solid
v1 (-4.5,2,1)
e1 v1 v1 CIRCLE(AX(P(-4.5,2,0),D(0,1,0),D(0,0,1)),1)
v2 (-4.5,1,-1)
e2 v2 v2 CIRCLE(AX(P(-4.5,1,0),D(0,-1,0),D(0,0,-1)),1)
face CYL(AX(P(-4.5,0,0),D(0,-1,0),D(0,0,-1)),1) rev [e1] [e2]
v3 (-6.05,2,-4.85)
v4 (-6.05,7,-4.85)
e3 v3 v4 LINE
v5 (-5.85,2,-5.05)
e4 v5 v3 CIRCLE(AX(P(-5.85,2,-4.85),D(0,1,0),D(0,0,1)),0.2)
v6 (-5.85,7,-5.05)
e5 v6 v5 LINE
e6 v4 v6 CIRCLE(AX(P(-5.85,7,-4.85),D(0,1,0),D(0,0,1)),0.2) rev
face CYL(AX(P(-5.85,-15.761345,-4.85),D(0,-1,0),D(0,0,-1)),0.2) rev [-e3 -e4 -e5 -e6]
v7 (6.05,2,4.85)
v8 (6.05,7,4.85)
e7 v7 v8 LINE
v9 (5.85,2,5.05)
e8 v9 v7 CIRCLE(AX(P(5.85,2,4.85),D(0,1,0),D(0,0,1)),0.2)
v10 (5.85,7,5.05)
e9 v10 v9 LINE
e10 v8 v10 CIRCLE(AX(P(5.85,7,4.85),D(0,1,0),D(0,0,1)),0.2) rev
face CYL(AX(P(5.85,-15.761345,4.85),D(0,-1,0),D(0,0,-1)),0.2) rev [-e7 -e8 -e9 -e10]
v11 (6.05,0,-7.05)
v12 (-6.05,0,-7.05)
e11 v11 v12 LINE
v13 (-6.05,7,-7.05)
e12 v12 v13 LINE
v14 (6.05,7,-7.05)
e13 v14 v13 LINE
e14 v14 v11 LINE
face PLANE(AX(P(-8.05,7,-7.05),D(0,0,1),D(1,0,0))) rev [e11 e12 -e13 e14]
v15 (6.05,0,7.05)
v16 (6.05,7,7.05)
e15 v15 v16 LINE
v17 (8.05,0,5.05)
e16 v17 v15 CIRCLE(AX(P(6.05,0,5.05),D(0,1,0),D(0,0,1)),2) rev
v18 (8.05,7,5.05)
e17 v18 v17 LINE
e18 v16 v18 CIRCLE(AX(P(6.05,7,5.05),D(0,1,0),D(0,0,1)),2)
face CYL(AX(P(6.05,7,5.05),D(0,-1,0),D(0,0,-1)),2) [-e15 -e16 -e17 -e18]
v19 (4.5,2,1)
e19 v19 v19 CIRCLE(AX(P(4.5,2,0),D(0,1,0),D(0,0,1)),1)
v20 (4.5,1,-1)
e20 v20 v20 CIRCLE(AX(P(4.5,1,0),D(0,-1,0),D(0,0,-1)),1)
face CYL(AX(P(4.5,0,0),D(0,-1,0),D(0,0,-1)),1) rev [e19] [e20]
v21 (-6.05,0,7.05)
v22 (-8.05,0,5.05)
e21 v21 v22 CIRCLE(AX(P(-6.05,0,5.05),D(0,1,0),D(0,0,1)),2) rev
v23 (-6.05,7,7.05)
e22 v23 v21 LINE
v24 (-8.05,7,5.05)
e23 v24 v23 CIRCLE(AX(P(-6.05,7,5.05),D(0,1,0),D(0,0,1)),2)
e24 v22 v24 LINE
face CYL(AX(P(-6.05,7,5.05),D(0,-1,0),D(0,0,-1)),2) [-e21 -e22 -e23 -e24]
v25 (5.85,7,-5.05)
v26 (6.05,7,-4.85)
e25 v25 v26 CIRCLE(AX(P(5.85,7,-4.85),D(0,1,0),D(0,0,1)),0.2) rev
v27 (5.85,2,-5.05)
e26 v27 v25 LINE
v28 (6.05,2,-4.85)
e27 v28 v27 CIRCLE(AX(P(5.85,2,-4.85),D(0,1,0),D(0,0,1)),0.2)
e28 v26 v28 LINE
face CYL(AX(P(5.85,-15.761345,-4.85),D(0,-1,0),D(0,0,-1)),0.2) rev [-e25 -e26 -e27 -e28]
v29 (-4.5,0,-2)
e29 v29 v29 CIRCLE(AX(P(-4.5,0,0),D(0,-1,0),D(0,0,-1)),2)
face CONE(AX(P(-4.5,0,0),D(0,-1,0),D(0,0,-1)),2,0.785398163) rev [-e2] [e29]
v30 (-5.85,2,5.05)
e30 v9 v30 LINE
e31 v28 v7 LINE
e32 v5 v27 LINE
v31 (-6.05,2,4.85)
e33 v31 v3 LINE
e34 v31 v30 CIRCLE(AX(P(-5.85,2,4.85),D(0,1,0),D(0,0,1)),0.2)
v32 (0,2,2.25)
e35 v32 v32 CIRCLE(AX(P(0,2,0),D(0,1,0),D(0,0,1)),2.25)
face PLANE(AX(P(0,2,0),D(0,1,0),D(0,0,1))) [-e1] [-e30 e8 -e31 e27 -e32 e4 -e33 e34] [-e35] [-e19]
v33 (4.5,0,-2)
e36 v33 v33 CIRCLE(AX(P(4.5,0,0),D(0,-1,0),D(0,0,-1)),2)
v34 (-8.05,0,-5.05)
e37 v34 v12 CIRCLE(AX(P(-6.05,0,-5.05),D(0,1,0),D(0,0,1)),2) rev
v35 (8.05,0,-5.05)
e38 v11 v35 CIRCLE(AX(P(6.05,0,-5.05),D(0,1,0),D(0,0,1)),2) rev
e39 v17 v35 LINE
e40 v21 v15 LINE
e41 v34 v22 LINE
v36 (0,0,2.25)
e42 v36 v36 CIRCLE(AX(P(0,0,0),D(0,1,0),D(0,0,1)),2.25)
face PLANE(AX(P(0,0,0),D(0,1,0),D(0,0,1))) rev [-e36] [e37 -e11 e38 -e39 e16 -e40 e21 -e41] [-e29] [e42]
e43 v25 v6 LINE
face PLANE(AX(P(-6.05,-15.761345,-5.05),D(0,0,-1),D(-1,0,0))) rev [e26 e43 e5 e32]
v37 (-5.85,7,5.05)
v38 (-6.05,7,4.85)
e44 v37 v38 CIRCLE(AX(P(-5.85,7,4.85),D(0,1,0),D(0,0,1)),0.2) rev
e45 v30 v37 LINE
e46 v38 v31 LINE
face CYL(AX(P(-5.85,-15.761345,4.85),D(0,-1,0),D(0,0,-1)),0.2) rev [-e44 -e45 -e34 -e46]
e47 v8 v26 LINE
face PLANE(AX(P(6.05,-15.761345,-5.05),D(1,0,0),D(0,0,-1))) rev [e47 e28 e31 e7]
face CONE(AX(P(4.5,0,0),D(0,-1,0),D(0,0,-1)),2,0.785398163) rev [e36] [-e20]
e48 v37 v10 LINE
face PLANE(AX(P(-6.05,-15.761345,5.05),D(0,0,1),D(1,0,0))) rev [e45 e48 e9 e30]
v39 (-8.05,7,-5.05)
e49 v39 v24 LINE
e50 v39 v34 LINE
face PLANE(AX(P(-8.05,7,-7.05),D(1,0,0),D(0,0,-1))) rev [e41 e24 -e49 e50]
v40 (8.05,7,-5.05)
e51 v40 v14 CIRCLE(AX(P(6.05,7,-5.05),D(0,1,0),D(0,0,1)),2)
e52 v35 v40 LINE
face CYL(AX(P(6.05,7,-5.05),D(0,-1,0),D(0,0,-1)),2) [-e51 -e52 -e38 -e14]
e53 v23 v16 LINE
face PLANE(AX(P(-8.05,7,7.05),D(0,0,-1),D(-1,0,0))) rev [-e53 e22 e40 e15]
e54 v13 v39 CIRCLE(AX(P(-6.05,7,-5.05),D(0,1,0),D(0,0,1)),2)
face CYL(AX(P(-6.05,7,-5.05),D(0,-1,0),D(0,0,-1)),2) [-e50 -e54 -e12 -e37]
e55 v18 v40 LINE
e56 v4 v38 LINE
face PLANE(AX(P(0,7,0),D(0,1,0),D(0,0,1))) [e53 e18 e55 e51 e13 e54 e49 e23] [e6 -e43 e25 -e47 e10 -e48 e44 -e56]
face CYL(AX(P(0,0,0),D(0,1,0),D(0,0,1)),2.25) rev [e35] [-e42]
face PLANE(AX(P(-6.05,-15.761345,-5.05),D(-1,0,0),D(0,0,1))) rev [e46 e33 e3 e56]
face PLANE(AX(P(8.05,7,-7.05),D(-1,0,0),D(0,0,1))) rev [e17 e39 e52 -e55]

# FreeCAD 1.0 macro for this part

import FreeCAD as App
import Part
import Sketcher


def edges_at(feature, points):
    """Names of the edges that pass closest to the given points."""
    edges = feature.Shape.Edges
    near = lambda p: min(range(len(edges)), key=lambda i: edges[i].distToShape(Part.Vertex(*p))[0])
    return sorted({f"Edge{near(p) + 1}" for p in points})

doc = App.newDocument("Part")
body = doc.addObject("PartDesign::Body", "Body")

sketch1 = doc.addObject("Sketcher::SketchObject", "Sketch")
body.addObject(sketch1)
sketch1.AttachmentSupport = (doc.XZ_Plane, [""])
sketch1.MapMode = "FlatFace"
sketch1.addGeometry(Part.LineSegment(App.Vector(-8, -7, 0), App.Vector(-8, 7, 0)), False)
sketch1.addGeometry(Part.LineSegment(App.Vector(-8, 7, 0), App.Vector(8, 7, 0)), False)
sketch1.addGeometry(Part.LineSegment(App.Vector(8, 7, 0), App.Vector(8, -7, 0)), False)
sketch1.addGeometry(Part.LineSegment(App.Vector(8, -7, 0), App.Vector(-8, -7, 0)), False)
sketch1.addConstraint(Sketcher.Constraint("Coincident", 0, 2, 1, 1))
sketch1.addConstraint(Sketcher.Constraint("Coincident", 1, 2, 2, 1))
sketch1.addConstraint(Sketcher.Constraint("Coincident", 2, 2, 3, 1))
sketch1.addConstraint(Sketcher.Constraint("Coincident", 3, 2, 0, 1))
sketch1.addConstraint(Sketcher.Constraint("Vertical", 0))
sketch1.addConstraint(Sketcher.Constraint("Horizontal", 1))
sketch1.addConstraint(Sketcher.Constraint("Vertical", 2))
sketch1.addConstraint(Sketcher.Constraint("Horizontal", 3))
sketch1.addConstraint(Sketcher.Constraint("Symmetric", 0, 2, 2, 2, -1, 1))
sketch1.addConstraint(Sketcher.Constraint("DistanceX", 1, 1, 1, 2, 16.1))
sketch1.addConstraint(Sketcher.Constraint("DistanceY", 0, 1, 0, 2, 14.1))
pad1 = doc.addObject("PartDesign::Pad", "Pad")
body.addObject(pad1)
pad1.Profile = sketch1
pad1.Length = 7
pad1.Reversed = True

sketch2 = doc.addObject("Sketcher::SketchObject", "Sketch001")
body.addObject(sketch2)
sketch2.AttachmentSupport = (doc.XZ_Plane, [""])
sketch2.MapMode = "FlatFace"
sketch2.AttachmentOffset = App.Placement(App.Vector(0, 0, -7), App.Rotation())
sketch2.addGeometry(Part.LineSegment(App.Vector(-6, -5, 0), App.Vector(-6, 5, 0)), False)
sketch2.addGeometry(Part.LineSegment(App.Vector(-6, 5, 0), App.Vector(6, 5, 0)), False)
sketch2.addGeometry(Part.LineSegment(App.Vector(6, 5, 0), App.Vector(6, -5, 0)), False)
sketch2.addGeometry(Part.LineSegment(App.Vector(6, -5, 0), App.Vector(-6, -5, 0)), False)
sketch2.addConstraint(Sketcher.Constraint("Coincident", 0, 2, 1, 1))
sketch2.addConstraint(Sketcher.Constraint("Coincident", 1, 2, 2, 1))
sketch2.addConstraint(Sketcher.Constraint("Coincident", 2, 2, 3, 1))
sketch2.addConstraint(Sketcher.Constraint("Coincident", 3, 2, 0, 1))
sketch2.addConstraint(Sketcher.Constraint("Vertical", 0))
sketch2.addConstraint(Sketcher.Constraint("Horizontal", 1))
sketch2.addConstraint(Sketcher.Constraint("Vertical", 2))
sketch2.addConstraint(Sketcher.Constraint("Horizontal", 3))
sketch2.addConstraint(Sketcher.Constraint("Symmetric", 0, 2, 2, 2, -1, 1))
sketch2.addConstraint(Sketcher.Constraint("DistanceX", 1, 1, 1, 2, 12.1))
sketch2.addConstraint(Sketcher.Constraint("DistanceY", 0, 1, 0, 2, 10.1))
pocket1 = doc.addObject("PartDesign::Pocket", "Pocket")
body.addObject(pocket1)
pocket1.Profile = sketch2
pocket1.Length = 5
pocket1.Reversed = True

sketch3 = doc.addObject("Sketcher::SketchObject", "Sketch002")
body.addObject(sketch3)
sketch3.AttachmentSupport = (doc.XZ_Plane, [""])
sketch3.MapMode = "FlatFace"
sketch3.addGeometry(Part.Circle(App.Vector(-4.5, 0, 0), App.Vector(0, 0, 1), 1), False)
sketch3.addGeometry(Part.Circle(App.Vector(4.5, 0, 0), App.Vector(0, 0, 1), 1), False)
sketch3.addConstraint(Sketcher.Constraint("Equal", 0, 1))
sketch3.addConstraint(Sketcher.Constraint("Symmetric", 0, 3, 1, 3, -1, 1))
sketch3.addConstraint(Sketcher.Constraint("PointOnObject", 0, 3, -1))
sketch3.addConstraint(Sketcher.Constraint("Diameter", 0, 2.0))
sketch3.addConstraint(Sketcher.Constraint("DistanceX", 0, 3, 1, 3, 9.0))
doc.recompute()
hole = doc.addObject("PartDesign::Hole", "Hole")
body.addObject(hole)
hole.Profile = sketch3
hole.ThreadType = "None"
hole.Diameter = 2
hole.DepthType = "Dimension"
hole.Depth = 2
hole.DrillPoint = "Flat"
hole.HoleCutType = "Countersink"
hole.HoleCutDiameter = 4
hole.HoleCutCountersinkAngle = 90

sketch4 = doc.addObject("Sketcher::SketchObject", "Sketch003")
body.addObject(sketch4)
sketch4.AttachmentSupport = (doc.XZ_Plane, [""])
sketch4.MapMode = "FlatFace"
sketch4.AttachmentOffset = App.Placement(App.Vector(0, 0, -2), App.Rotation())
sketch4.addGeometry(Part.Circle(App.Vector(0, 0, 0), App.Vector(0, 0, 1), 2.2), False)
sketch4.addConstraint(Sketcher.Constraint("Coincident", 0, 3, -1, 1))
sketch4.addConstraint(Sketcher.Constraint("Diameter", 0, 4.5))
pocket2 = doc.addObject("PartDesign::Pocket", "Pocket001")
body.addObject(pocket2)
pocket2.Profile = sketch4
pocket2.Type = "ThroughAll"
pocket2.Reversed = True
doc.recompute()

fillet = doc.addObject("PartDesign::Fillet", "Fillet")
body.addObject(fillet)
fillet.Base = (pocket2, edges_at(pocket2, [
    (-8.05, 3.5, -7.05),
    (8.05, 3.5, -7.05),
    (8.05, 3.5, 7.05),
    (-8.05, 3.5, 7.05),
]))
fillet.Radius = 2
doc.recompute()

fillet2 = doc.addObject("PartDesign::Fillet", "Fillet001")
body.addObject(fillet2)
fillet2.Base = (fillet, edges_at(fillet, [
    (-6.05, 4.5, 5.05),
    (-6.05, 4.5, -5.05),
    (6.05, 4.5, -5.05),
    (6.05, 4.5, 5.05),
]))
fillet2.Radius = 0.2

doc.recompute()
